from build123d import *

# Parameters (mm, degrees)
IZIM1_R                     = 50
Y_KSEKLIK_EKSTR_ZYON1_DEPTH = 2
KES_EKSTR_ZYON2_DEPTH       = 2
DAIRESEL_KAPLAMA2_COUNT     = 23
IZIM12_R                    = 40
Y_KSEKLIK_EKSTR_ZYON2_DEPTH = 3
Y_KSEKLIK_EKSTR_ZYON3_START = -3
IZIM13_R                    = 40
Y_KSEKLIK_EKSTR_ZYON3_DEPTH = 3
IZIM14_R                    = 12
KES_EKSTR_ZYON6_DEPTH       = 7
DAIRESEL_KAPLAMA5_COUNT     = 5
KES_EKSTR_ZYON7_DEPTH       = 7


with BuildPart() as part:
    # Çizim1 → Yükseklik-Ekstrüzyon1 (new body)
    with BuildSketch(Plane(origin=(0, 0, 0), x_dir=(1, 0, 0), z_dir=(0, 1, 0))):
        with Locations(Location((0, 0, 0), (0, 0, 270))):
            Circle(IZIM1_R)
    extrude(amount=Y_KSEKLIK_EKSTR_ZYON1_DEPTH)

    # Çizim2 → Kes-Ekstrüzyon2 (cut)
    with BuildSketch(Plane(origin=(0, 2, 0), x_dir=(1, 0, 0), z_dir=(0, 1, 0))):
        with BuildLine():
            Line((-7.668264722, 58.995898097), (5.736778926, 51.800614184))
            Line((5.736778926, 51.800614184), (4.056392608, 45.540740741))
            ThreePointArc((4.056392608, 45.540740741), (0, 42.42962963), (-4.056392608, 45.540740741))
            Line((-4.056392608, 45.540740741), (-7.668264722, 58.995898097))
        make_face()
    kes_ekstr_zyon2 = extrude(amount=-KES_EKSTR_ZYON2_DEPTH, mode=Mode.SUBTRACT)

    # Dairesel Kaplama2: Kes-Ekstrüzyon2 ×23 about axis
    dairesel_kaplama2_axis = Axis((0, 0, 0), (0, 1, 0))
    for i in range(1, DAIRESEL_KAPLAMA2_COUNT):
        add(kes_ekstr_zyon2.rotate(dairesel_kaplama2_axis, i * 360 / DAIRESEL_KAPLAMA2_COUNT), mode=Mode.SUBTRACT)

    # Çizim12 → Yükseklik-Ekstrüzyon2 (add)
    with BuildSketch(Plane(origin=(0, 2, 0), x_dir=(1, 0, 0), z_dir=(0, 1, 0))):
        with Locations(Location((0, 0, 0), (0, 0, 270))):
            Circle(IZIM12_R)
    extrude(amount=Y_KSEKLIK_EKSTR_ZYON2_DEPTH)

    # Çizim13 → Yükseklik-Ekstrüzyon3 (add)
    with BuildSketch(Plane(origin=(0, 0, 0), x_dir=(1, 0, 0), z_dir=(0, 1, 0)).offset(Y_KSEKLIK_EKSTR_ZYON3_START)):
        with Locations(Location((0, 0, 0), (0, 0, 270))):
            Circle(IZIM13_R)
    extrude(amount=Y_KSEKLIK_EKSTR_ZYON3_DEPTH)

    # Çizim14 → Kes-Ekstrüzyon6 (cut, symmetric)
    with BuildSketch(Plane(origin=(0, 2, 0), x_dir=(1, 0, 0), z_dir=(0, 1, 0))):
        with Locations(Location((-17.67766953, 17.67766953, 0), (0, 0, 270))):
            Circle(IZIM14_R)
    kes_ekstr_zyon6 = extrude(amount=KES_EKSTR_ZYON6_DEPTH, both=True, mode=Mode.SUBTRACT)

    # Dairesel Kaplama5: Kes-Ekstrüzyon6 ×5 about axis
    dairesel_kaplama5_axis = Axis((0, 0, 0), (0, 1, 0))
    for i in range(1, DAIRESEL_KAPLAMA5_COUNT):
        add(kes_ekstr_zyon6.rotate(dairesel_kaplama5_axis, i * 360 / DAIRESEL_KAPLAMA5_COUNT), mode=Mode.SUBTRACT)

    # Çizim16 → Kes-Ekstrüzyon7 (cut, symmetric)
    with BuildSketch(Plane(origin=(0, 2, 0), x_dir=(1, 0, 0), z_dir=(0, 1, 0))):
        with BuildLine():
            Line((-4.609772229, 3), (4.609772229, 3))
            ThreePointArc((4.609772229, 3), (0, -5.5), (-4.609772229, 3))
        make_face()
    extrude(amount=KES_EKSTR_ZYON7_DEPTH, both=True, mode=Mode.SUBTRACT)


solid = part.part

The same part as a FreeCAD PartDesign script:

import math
import FreeCAD as App
import Part
import Sketcher
from FreeCAD import Vector
Q = App.Units.Quantity

doc = App.newDocument("Part")
body = doc.addObject("PartDesign::Body", "Body")

# Sketch on XZ plane
sketch1 = body.newObject("Sketcher::SketchObject", "Sketch")
sketch1.AttachmentSupport = (doc.getObject("XZ_Plane"), [""])
sketch1.MapMode = "FlatFace"
sketch1.addGeometry(Part.Circle(Vector(0, 0, 0), Vector(0, 0, 1), 50), False)
sketch1.addConstraint([
    Sketcher.Constraint("Coincident", 0, 3, -1, 1),
    Sketcher.Constraint("Diameter", 0, Q("100 mm")),
])
pad1 = body.newObject("PartDesign::Pad", "Pad")
pad1.Profile = sketch1
pad1.Length = 2
pad1.Reversed = True

# Sketch on XZ plane
sketch2 = body.newObject("Sketcher::SketchObject", "Sketch001")
sketch2.AttachmentSupport = (doc.getObject("XZ_Plane"), [""])
sketch2.MapMode = "FlatFace"
sketch2.AttachmentOffset = App.Placement(Vector(0, 0, -2), App.Rotation())
sketch2.addGeometry([
    Part.LineSegment(Vector(5.736779, -51.800614, 0), Vector(-7.668265, -58.995898, 0)),
    Part.LineSegment(Vector(-7.668265, -58.995898, 0), Vector(-4.056393, -45.540741, 0)),
    Part.ArcOfCircle(Part.Circle(Vector(0, -46.62963, 0), Vector(0, 0, 1), 4.2), math.radians(15.026114), math.radians(164.973886)),
    Part.LineSegment(Vector(4.056393, -45.540741, 0), Vector(5.736779, -51.800614, 0)),
], False)
sketch2.addConstraint([
    Sketcher.Constraint("Coincident", 0, 2, 1, 1),
    Sketcher.Constraint("Tangent", 1, 2, 2, 2),
    Sketcher.Constraint("Tangent", 2, 1, 3, 1),
    Sketcher.Constraint("Coincident", 3, 2, 0, 1),
    Sketcher.Constraint("Symmetric", 1, 2, 2, 1, -2),
    Sketcher.Constraint("Radius", 2, Q("4.2 mm")),
    Sketcher.Constraint("DistanceY", 0, 2, -1, 1, Q("58.995898 mm")),
    Sketcher.Constraint("Distance", 0, Q("15.21405 mm")),
    Sketcher.Constraint("Distance", 3, Q("6.48149 mm")),
    Sketcher.Constraint("DistanceY", 2, 3, -1, 1, Q("46.62963 mm")),
])
pocket1 = body.newObject("PartDesign::Pocket", "Pocket")
pocket1.Profile = sketch2
pocket1.Length = 2
pocket1.Reversed = True
doc.recompute()

polarpattern = body.newObject("PartDesign::PolarPattern", "PolarPattern")
polarpattern.Originals = [pocket1]
polarpattern.Axis = (doc.getObject("Y_Axis"), [""])
polarpattern.Angle = 360
polarpattern.Occurrences = 23
body.Tip = polarpattern

# Sketch on XZ plane
sketch3 = body.newObject("Sketcher::SketchObject", "Sketch002")
sketch3.AttachmentSupport = (doc.getObject("XZ_Plane"), [""])
sketch3.MapMode = "FlatFace"
sketch3.AttachmentOffset = App.Placement(Vector(0, 0, -2), App.Rotation())
sketch3.addGeometry(Part.Circle(Vector(0, 0, 0), Vector(0, 0, 1), 40), False)
sketch3.addConstraint([
    Sketcher.Constraint("Coincident", 0, 3, -1, 1),
    Sketcher.Constraint("Diameter", 0, Q("80 mm")),
])
pad2 = body.newObject("PartDesign::Pad", "Pad001")
pad2.Profile = sketch3
pad2.Length = 3
pad2.Reversed = True

# Sketch on XZ plane
sketch4 = body.newObject("Sketcher::SketchObject", "Sketch003")
sketch4.AttachmentSupport = (doc.getObject("XZ_Plane"), [""])
sketch4.MapMode = "FlatFace"
sketch4.AttachmentOffset = App.Placement(Vector(0, 0, 3), App.Rotation())
sketch4.addGeometry(Part.Circle(Vector(0, 0, 0), Vector(0, 0, 1), 40), False)
sketch4.addConstraint([
    Sketcher.Constraint("Coincident", 0, 3, -1, 1),
    Sketcher.Constraint("Diameter", 0, Q("80 mm")),
])
pad3 = body.newObject("PartDesign::Pad", "Pad002")
pad3.Profile = sketch4
pad3.Length = 3
pad3.Reversed = True

# Sketch on XZ plane
sketch5 = body.newObject("Sketcher::SketchObject", "Sketch004")
sketch5.AttachmentSupport = (doc.getObject("XZ_Plane"), [""])
sketch5.MapMode = "FlatFace"
sketch5.AttachmentOffset = App.Placement(Vector(0, 0, -2), App.Rotation())
sketch5.addGeometry(Part.Circle(Vector(-17.67767, -17.67767, 0), Vector(0, 0, 1), 12), False)
sketch5.addConstraint([
    Sketcher.Constraint("Diameter", 0, Q("24 mm")),
    Sketcher.Constraint("DistanceX", 0, 3, -1, 1, Q("17.67767 mm")),
    Sketcher.Constraint("DistanceY", 0, 3, -1, 1, Q("17.67767 mm")),
])
pocket2 = body.newObject("PartDesign::Pocket", "Pocket001")
pocket2.Profile = sketch5
pocket2.Length = 14
pocket2.Midplane = True
doc.recompute()

polarpattern2 = body.newObject("PartDesign::PolarPattern", "PolarPattern001")
polarpattern2.Originals = [pocket2]
polarpattern2.Axis = (doc.getObject("Y_Axis"), [""])
polarpattern2.Angle = 360
polarpattern2.Occurrences = 5
body.Tip = polarpattern2

# Sketch on XZ plane
sketch6 = body.newObject("Sketcher::SketchObject", "Sketch005")
sketch6.AttachmentSupport = (doc.getObject("XZ_Plane"), [""])
sketch6.MapMode = "FlatFace"
sketch6.AttachmentOffset = App.Placement(Vector(0, 0, -2), App.Rotation())
sketch6.addGeometry([
    Part.LineSegment(Vector(4.609772, -3, 0), Vector(-4.609772, -3, 0)),
    Part.ArcOfCircle(Part.Circle(Vector(0, 0, 0), Vector(0, 0, 1), 5.5), math.radians(-33.055731), math.radians(213.055731)),
], False)
sketch6.addConstraint([
    Sketcher.Constraint("Coincident", 0, 1, 1, 1),
    Sketcher.Constraint("Coincident", 1, 2, 0, 2),
    Sketcher.Constraint("Horizontal", 0),
    Sketcher.Constraint("Coincident", 1, 3, -1, 1),
    Sketcher.Constraint("Radius", 1, Q("5.5 mm")),
    Sketcher.Constraint("DistanceY", 0, 1, -1, 1, Q("3 mm")),
])
pocket3 = body.newObject("PartDesign::Pocket", "Pocket002")
pocket3.Profile = sketch6
pocket3.Length = 14
pocket3.Midplane = True

doc.recompute()
